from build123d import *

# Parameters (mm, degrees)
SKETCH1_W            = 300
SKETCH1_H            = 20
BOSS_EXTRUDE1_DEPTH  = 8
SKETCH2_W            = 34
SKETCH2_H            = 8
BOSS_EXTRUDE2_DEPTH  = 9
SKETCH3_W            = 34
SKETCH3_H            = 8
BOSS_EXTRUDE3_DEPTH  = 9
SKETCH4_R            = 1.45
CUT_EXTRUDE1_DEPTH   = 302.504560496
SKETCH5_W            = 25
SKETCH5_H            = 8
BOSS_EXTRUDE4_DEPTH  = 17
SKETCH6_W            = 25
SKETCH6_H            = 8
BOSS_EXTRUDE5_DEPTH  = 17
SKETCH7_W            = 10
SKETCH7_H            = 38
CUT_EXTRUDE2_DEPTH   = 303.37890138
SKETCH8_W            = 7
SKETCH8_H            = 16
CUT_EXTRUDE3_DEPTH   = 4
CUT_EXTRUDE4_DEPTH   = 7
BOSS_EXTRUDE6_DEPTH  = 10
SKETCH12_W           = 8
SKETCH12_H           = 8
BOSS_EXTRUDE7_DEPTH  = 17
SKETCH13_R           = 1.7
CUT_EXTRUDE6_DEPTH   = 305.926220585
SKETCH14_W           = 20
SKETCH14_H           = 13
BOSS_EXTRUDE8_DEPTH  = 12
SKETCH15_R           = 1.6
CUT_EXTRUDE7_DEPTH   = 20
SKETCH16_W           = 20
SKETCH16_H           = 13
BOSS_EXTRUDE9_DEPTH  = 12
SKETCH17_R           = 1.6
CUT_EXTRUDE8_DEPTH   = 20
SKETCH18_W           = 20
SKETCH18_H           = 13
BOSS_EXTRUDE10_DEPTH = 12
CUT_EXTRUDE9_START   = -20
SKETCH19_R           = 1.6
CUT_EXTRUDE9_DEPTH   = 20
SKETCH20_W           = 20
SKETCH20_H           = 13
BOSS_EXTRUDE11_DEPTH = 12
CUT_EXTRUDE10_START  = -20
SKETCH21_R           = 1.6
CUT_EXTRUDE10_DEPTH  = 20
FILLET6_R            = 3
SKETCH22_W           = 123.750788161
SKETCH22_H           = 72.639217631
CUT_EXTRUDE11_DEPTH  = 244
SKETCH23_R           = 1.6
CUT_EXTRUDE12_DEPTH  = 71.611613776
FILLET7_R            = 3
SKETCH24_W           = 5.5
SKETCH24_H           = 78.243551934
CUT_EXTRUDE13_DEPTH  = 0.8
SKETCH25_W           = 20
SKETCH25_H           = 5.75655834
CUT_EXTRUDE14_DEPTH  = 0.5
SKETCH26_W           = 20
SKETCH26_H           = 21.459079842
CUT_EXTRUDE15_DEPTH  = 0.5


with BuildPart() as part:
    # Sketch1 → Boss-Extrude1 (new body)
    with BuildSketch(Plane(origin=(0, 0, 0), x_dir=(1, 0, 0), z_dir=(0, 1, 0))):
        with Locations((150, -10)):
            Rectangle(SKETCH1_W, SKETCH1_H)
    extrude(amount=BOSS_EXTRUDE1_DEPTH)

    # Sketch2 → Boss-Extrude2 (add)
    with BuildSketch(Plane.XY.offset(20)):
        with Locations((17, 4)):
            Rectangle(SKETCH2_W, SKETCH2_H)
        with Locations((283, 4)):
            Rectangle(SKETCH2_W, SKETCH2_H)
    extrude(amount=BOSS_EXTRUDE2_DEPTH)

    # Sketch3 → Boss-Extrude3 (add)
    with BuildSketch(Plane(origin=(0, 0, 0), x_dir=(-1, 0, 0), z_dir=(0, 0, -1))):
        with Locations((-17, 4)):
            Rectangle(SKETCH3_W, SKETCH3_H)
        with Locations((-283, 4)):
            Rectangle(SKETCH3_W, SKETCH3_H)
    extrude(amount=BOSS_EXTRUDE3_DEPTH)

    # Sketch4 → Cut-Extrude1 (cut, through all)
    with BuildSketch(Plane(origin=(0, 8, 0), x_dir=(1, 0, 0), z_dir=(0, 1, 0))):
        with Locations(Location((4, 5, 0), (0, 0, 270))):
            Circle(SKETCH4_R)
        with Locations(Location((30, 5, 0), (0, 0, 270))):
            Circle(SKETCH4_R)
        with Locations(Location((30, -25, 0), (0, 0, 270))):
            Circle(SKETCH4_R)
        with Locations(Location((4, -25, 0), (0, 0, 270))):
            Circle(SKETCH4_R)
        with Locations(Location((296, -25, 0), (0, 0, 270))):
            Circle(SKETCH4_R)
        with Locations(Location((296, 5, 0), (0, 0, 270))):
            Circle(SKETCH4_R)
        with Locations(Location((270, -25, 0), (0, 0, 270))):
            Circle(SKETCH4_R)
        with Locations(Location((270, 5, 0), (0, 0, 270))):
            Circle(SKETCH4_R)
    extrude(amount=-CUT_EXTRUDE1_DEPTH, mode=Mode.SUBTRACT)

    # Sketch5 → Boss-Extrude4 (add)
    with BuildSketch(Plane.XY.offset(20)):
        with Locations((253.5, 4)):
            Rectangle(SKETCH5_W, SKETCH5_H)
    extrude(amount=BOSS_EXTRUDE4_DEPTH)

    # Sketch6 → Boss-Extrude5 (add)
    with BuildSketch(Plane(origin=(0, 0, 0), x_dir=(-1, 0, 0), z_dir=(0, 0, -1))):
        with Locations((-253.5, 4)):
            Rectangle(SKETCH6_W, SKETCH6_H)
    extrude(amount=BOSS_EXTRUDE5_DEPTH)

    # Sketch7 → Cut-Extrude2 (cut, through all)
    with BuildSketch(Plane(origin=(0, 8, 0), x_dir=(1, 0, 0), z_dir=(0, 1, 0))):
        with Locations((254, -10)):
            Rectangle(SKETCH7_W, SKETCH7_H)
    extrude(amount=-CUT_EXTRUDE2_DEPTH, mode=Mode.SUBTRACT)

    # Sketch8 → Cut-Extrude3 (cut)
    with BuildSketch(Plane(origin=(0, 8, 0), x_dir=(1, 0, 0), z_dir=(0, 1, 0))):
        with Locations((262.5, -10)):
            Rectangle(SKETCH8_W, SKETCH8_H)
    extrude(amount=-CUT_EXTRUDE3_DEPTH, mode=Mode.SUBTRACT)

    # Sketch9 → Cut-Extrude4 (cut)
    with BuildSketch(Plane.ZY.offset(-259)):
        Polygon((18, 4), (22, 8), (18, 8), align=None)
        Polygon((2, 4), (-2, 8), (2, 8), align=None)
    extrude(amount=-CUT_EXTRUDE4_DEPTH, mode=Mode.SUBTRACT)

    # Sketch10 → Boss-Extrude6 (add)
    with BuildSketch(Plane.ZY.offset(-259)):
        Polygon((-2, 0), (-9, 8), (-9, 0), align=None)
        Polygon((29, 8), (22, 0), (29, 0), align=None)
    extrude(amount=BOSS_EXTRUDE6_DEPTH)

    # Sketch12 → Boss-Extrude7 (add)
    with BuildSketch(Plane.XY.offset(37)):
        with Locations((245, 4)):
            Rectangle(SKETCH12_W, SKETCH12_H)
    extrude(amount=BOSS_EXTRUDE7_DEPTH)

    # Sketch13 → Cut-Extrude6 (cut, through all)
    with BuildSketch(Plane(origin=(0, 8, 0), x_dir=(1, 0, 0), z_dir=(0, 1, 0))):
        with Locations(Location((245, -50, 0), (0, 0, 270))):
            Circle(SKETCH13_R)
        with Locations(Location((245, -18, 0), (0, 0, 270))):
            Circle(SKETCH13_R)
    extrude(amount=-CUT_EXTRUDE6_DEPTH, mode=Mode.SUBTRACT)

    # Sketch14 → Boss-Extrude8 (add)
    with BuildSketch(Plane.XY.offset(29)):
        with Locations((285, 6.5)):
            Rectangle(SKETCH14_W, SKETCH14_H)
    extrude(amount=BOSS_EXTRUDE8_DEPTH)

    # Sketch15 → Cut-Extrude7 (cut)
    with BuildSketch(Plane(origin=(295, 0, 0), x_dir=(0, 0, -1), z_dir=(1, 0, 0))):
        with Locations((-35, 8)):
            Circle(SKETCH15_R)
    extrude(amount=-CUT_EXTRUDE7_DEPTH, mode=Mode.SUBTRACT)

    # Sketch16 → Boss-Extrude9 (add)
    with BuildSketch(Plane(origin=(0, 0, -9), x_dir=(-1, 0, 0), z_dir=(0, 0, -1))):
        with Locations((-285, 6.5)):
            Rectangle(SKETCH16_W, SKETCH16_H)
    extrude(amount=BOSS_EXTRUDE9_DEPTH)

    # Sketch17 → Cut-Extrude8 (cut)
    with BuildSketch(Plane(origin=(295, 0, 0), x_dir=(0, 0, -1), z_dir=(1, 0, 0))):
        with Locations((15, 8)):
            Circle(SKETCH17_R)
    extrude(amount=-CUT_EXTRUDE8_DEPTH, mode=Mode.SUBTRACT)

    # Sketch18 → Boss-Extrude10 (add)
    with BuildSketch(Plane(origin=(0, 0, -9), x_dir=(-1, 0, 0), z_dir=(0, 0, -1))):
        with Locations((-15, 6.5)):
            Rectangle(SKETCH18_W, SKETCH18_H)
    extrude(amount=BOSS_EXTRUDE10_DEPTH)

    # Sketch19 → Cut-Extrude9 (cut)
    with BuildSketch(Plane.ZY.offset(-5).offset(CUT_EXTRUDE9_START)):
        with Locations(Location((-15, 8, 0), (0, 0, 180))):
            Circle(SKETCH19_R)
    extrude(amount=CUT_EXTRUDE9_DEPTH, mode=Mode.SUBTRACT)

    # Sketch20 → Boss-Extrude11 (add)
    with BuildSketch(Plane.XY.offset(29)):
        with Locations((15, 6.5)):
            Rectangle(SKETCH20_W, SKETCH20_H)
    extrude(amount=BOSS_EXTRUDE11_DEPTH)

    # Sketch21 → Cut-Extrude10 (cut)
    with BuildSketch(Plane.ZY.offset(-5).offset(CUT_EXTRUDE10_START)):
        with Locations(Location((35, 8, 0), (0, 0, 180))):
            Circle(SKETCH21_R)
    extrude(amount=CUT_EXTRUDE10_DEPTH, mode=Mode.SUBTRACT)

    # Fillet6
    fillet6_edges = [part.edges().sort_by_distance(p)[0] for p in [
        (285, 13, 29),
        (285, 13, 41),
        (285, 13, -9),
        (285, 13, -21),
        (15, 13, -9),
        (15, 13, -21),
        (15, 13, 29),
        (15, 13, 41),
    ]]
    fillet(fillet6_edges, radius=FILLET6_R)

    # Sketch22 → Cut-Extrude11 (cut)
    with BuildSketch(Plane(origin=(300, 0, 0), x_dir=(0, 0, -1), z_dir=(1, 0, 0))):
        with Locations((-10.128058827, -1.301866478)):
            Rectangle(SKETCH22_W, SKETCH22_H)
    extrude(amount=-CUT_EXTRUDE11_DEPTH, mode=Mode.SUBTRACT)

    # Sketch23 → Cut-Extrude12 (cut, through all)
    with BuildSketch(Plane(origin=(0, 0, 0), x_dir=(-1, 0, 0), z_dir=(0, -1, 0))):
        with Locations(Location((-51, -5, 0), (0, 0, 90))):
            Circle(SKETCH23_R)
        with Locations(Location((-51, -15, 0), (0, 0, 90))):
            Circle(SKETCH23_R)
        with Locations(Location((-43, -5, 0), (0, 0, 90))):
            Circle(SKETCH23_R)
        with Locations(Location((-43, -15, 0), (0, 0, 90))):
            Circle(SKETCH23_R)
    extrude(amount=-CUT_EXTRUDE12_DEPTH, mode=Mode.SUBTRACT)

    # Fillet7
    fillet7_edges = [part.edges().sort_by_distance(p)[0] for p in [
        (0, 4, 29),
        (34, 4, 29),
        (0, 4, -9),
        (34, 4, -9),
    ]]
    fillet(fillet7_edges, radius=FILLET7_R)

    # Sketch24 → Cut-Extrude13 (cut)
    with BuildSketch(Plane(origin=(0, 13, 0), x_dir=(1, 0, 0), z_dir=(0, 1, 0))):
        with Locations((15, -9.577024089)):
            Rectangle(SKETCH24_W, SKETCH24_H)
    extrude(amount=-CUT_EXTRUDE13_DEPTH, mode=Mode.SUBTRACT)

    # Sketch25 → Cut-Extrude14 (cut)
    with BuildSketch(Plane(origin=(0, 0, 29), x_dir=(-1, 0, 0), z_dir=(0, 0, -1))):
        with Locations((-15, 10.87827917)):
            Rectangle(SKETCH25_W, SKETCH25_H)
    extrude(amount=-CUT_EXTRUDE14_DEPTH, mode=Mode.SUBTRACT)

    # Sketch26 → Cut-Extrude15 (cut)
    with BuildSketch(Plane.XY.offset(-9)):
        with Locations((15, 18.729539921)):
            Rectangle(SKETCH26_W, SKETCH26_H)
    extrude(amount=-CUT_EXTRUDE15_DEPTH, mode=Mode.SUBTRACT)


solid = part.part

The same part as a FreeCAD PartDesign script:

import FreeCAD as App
import Part
import Sketcher
Q = App.Units.Quantity


def edges_at(feature, points):
    """Names of the edges that pass closest to the given points."""
    edges = feature.Shape.Edges
    near = lambda p: min(range(len(edges)), key=lambda i: edges[i].distToShape(Part.Vertex(*p))[0])
    return sorted({f"Edge{near(p) + 1}" for p in points})


def add_polygon(sketch, points):
    """Adds a closed chain of lines whose ends are joined by coincident constraints."""
    first, n = sketch.GeometryCount, len(points)
    for a, b in zip(points, points[1:] + points[:1]):
        sketch.addGeometry(Part.LineSegment(App.Vector(*a, 0), App.Vector(*b, 0)), False)
    for i in range(n):
        sketch.addConstraint(Sketcher.Constraint("Coincident", first + i, 2, first + (i + 1) % n, 1))

doc = App.newDocument("Part")
body = doc.addObject("PartDesign::Body", "Body")

sketch1 = body.newObject("Sketcher::SketchObject", "Sketch")
sketch1.AttachmentSupport = (doc.getObject("XZ_Plane"), [""])
sketch1.MapMode = "FlatFace"
add_polygon(sketch1, [(0, 0), (0, 20), (300, 20), (300, 0)])
sketch1.addConstraint([
    Sketcher.Constraint("Vertical", 0),
    Sketcher.Constraint("Horizontal", 1),
    Sketcher.Constraint("Vertical", 2),
    Sketcher.Constraint("Horizontal", 3),
    Sketcher.Constraint("Coincident", 3, 2, -1, 1),
    Sketcher.Constraint("DistanceX", 1, 1, 1, 2, Q("300 mm")),
    Sketcher.Constraint("DistanceY", 0, 1, 0, 2, Q("20 mm")),
])
pad1 = body.newObject("PartDesign::Pad", "Pad")
pad1.Profile = sketch1
pad1.Length = 8
pad1.Reversed = True

sketch2 = body.newObject("Sketcher::SketchObject", "Sketch001")
sketch2.AttachmentSupport = (doc.getObject("XY_Plane"), [""])
sketch2.MapMode = "FlatFace"
sketch2.AttachmentOffset = App.Placement(App.Vector(0, 0, 20), App.Rotation())
add_polygon(sketch2, [(0, 8), (0, 0), (34, 0), (34, 8)])
add_polygon(sketch2, [(266, 8), (266, 0), (300, 0), (300, 8)])
sketch2.addConstraint([
    Sketcher.Constraint("Vertical", 0),
    Sketcher.Constraint("Horizontal", 1),
    Sketcher.Constraint("Vertical", 2),
    Sketcher.Constraint("Horizontal", 3),
    Sketcher.Constraint("Vertical", 4),
    Sketcher.Constraint("Horizontal", 5),
    Sketcher.Constraint("Vertical", 6),
    Sketcher.Constraint("Horizontal", 7),
    Sketcher.Constraint("Coincident", 0, 2, -1, 1),
    Sketcher.Constraint("PointOnObject", 4, 2, -1),
    Sketcher.Constraint("Horizontal", 3, 2, 6, 2),
    Sketcher.Constraint("Equal", 3, 5),
    Sketcher.Constraint("DistanceX", 1, 1, 1, 2, Q("34 mm")),
    Sketcher.Constraint("DistanceY", 0, 2, 0, 1, Q("8 mm")),
    Sketcher.Constraint("DistanceX", -1, 1, 4, 2, Q("266 mm")),
])
pad2 = body.newObject("PartDesign::Pad", "Pad001")
pad2.Profile = sketch2
pad2.Length = 9

sketch3 = body.newObject("Sketcher::SketchObject", "Sketch002")
sketch3.AttachmentSupport = (doc.getObject("XY_Plane"), [""])
sketch3.MapMode = "FlatFace"
add_polygon(sketch3, [(34, 8), (34, 0), (0, 0), (0, 8)])
add_polygon(sketch3, [(300, 8), (300, 0), (266, 0), (266, 8)])
sketch3.addConstraint([
    Sketcher.Constraint("Vertical", 0),
    Sketcher.Constraint("Horizontal", 1),
    Sketcher.Constraint("Vertical", 2),
    Sketcher.Constraint("Horizontal", 3),
    Sketcher.Constraint("Vertical", 4),
    Sketcher.Constraint("Horizontal", 5),
    Sketcher.Constraint("Vertical", 6),
    Sketcher.Constraint("Horizontal", 7),
    Sketcher.Constraint("Coincident", 1, 2, -1, 1),
    Sketcher.Constraint("PointOnObject", 4, 2, -1),
    Sketcher.Constraint("Horizontal", 3, 2, 6, 2),
    Sketcher.Constraint("Equal", 3, 5),
    Sketcher.Constraint("DistanceX", 1, 2, 1, 1, Q("34 mm")),
    Sketcher.Constraint("DistanceY", 0, 2, 0, 1, Q("8 mm")),
    Sketcher.Constraint("DistanceX", -1, 1, 4, 2, Q("300 mm")),
])
pad3 = body.newObject("PartDesign::Pad", "Pad002")
pad3.Profile = sketch3
pad3.Length = 9
pad3.Reversed = True

sketch4 = body.newObject("Sketcher::SketchObject", "Sketch003")
sketch4.AttachmentSupport = (doc.getObject("XZ_Plane"), [""])
sketch4.MapMode = "FlatFace"
sketch4.AttachmentOffset = App.Placement(App.Vector(0, 0, -8), App.Rotation())
sketch4.addGeometry([
    Part.Circle(App.Vector(4, -5, 0), App.Vector(0, 0, 1), 1.4),
    Part.Circle(App.Vector(30, -5, 0), App.Vector(0, 0, 1), 1.4),
    Part.Circle(App.Vector(30, 25, 0), App.Vector(0, 0, 1), 1.4),
    Part.Circle(App.Vector(4, 25, 0), App.Vector(0, 0, 1), 1.4),
    Part.Circle(App.Vector(296, 25, 0), App.Vector(0, 0, 1), 1.4),
    Part.Circle(App.Vector(296, -5, 0), App.Vector(0, 0, 1), 1.4),
    Part.Circle(App.Vector(270, 25, 0), App.Vector(0, 0, 1), 1.4),
    Part.Circle(App.Vector(270, -5, 0), App.Vector(0, 0, 1), 1.4),
], False)
sketch4.addConstraint([
    Sketcher.Constraint("Equal", 0, 1),
    Sketcher.Constraint("Equal", 1, 2),
    Sketcher.Constraint("Equal", 2, 3),
    Sketcher.Constraint("Equal", 3, 4),
    Sketcher.Constraint("Equal", 4, 5),
    Sketcher.Constraint("Equal", 5, 6),
    Sketcher.Constraint("Equal", 6, 7),
    Sketcher.Constraint("Horizontal", 0, 3, 1, 3),
    Sketcher.Constraint("Horizontal", 2, 3, 3, 3),
    Sketcher.Constraint("Horizontal", 3, 3, 4, 3),
    Sketcher.Constraint("Horizontal", 1, 3, 5, 3),
    Sketcher.Constraint("Horizontal", 4, 3, 6, 3),
    Sketcher.Constraint("Horizontal", 5, 3, 7, 3),
    Sketcher.Constraint("Vertical", 1, 3, 2, 3),
    Sketcher.Constraint("Vertical", 0, 3, 3, 3),
    Sketcher.Constraint("Vertical", 4, 3, 5, 3),
    Sketcher.Constraint("Vertical", 6, 3, 7, 3),
    Sketcher.Constraint("Diameter", 0, Q("2.9 mm")),
    Sketcher.Constraint("DistanceX", -1, 1, 0, 3, Q("4 mm")),
    Sketcher.Constraint("DistanceY", 0, 3, -1, 1, Q("5 mm")),
    Sketcher.Constraint("DistanceX", -1, 1, 1, 3, Q("30 mm")),
    Sketcher.Constraint("DistanceY", -1, 1, 2, 3, Q("25 mm")),
    Sketcher.Constraint("DistanceX", -1, 1, 4, 3, Q("296 mm")),
    Sketcher.Constraint("DistanceX", -1, 1, 6, 3, Q("270 mm")),
])
pocket1 = body.newObject("PartDesign::Pocket", "Pocket")
pocket1.Profile = sketch4
pocket1.Type = "ThroughAll"
pocket1.Reversed = True

sketch5 = body.newObject("Sketcher::SketchObject", "Sketch004")
sketch5.AttachmentSupport = (doc.getObject("XY_Plane"), [""])
sketch5.MapMode = "FlatFace"
sketch5.AttachmentOffset = App.Placement(App.Vector(0, 0, 20), App.Rotation())
add_polygon(sketch5, [(241, 8), (241, 0), (266, 0), (266, 8)])
sketch5.addConstraint([
    Sketcher.Constraint("Vertical", 0),
    Sketcher.Constraint("Horizontal", 1),
    Sketcher.Constraint("Vertical", 2),
    Sketcher.Constraint("Horizontal", 3),
    Sketcher.Constraint("PointOnObject", 0, 2, -1),
    Sketcher.Constraint("DistanceX", 1, 1, 1, 2, Q("25 mm")),
    Sketcher.Constraint("DistanceY", 0, 2, 0, 1, Q("8 mm")),
    Sketcher.Constraint("DistanceX", -1, 1, 0, 2, Q("241 mm")),
])
pad4 = body.newObject("PartDesign::Pad", "Pad003")
pad4.Profile = sketch5
pad4.Length = 17

sketch6 = body.newObject("Sketcher::SketchObject", "Sketch005")
sketch6.AttachmentSupport = (doc.getObject("XY_Plane"), [""])
sketch6.MapMode = "FlatFace"
add_polygon(sketch6, [(266, 8), (266, 0), (241, 0), (241, 8)])
sketch6.addConstraint([
    Sketcher.Constraint("Vertical", 0),
    Sketcher.Constraint("Horizontal", 1),
    Sketcher.Constraint("Vertical", 2),
    Sketcher.Constraint("Horizontal", 3),
    Sketcher.Constraint("PointOnObject", 0, 2, -1),
    Sketcher.Constraint("DistanceX", 1, 2, 1, 1, Q("25 mm")),
    Sketcher.Constraint("DistanceY", 0, 2, 0, 1, Q("8 mm")),
    Sketcher.Constraint("DistanceX", -1, 1, 0, 2, Q("266 mm")),
])
pad5 = body.newObject("PartDesign::Pad", "Pad004")
pad5.Profile = sketch6
pad5.Length = 17
pad5.Reversed = True

sketch7 = body.newObject("Sketcher::SketchObject", "Sketch006")
sketch7.AttachmentSupport = (doc.getObject("XZ_Plane"), [""])
sketch7.MapMode = "FlatFace"
sketch7.AttachmentOffset = App.Placement(App.Vector(0, 0, -8), App.Rotation())
add_polygon(sketch7, [(249, -9), (249, 29), (259, 29), (259, -9)])
sketch7.addConstraint([
    Sketcher.Constraint("Vertical", 0),
    Sketcher.Constraint("Horizontal", 1),
    Sketcher.Constraint("Vertical", 2),
    Sketcher.Constraint("Horizontal", 3),
    Sketcher.Constraint("DistanceX", 1, 1, 1, 2, Q("10 mm")),
    Sketcher.Constraint("DistanceY", 0, 1, 0, 2, Q("38 mm")),
    Sketcher.Constraint("DistanceX", -1, 1, 0, 2, Q("249 mm")),
    Sketcher.Constraint("DistanceY", -1, 1, 0, 2, Q("29 mm")),
])
pocket2 = body.newObject("PartDesign::Pocket", "Pocket001")
pocket2.Profile = sketch7
pocket2.Type = "ThroughAll"
pocket2.Reversed = True

sketch8 = body.newObject("Sketcher::SketchObject", "Sketch007")
sketch8.AttachmentSupport = (doc.getObject("XZ_Plane"), [""])
sketch8.MapMode = "FlatFace"
sketch8.AttachmentOffset = App.Placement(App.Vector(0, 0, -8), App.Rotation())
add_polygon(sketch8, [(259, 2), (259, 18), (266, 18), (266, 2)])
sketch8.addConstraint([
    Sketcher.Constraint("Vertical", 0),
    Sketcher.Constraint("Horizontal", 1),
    Sketcher.Constraint("Vertical", 2),
    Sketcher.Constraint("Horizontal", 3),
    Sketcher.Constraint("DistanceX", 1, 1, 1, 2, Q("7 mm")),
    Sketcher.Constraint("DistanceY", 0, 1, 0, 2, Q("16 mm")),
    Sketcher.Constraint("DistanceX", -1, 1, 0, 2, Q("259 mm")),
    Sketcher.Constraint("DistanceY", -1, 1, 0, 2, Q("18 mm")),
])
pocket3 = body.newObject("PartDesign::Pocket", "Pocket002")
pocket3.Profile = sketch8
pocket3.Length = 4
pocket3.Reversed = True

sketch9 = body.newObject("Sketcher::SketchObject", "Sketch008")
sketch9.AttachmentSupport = (doc.getObject("YZ_Plane"), [""])
sketch9.MapMode = "FlatFace"
sketch9.AttachmentOffset = App.Placement(App.Vector(0, 0, 259), App.Rotation())
add_polygon(sketch9, [(4, 18), (8, 22), (8, 18)])
add_polygon(sketch9, [(8, -2), (4, 2), (8, 2)])
sketch9.addConstraint([
    Sketcher.Constraint("Vertical", 1),
    Sketcher.Constraint("Horizontal", 2),
    Sketcher.Constraint("Horizontal", 4),
    Sketcher.Constraint("Vertical", 5),
    Sketcher.Constraint("Perpendicular", 0, 3),
    Sketcher.Constraint("Vertical", 2, 2, 3, 2),
    Sketcher.Constraint("Vertical", 1, 2, 4, 2),
    Sketcher.Constraint("Equal", 4, 1),
    Sketcher.Constraint("DistanceX", 2, 2, 2, 1, Q("4 mm")),
    Sketcher.Constraint("DistanceX", -1, 1, 0, 2, Q("8 mm")),
    Sketcher.Constraint("DistanceY", -1, 1, 0, 2, Q("22 mm")),
    Sketcher.Constraint("DistanceY", -1, 1, 3, 2, Q("2 mm")),
])
pocket4 = body.newObject("PartDesign::Pocket", "Pocket003")
pocket4.Profile = sketch9
pocket4.Length = 7
pocket4.Reversed = True

sketch10 = body.newObject("Sketcher::SketchObject", "Sketch009")
sketch10.AttachmentSupport = (doc.getObject("YZ_Plane"), [""])
sketch10.MapMode = "FlatFace"
sketch10.AttachmentOffset = App.Placement(App.Vector(0, 0, 259), App.Rotation())
add_polygon(sketch10, [(0, -2), (8, -9), (0, -9)])
add_polygon(sketch10, [(8, 29), (0, 22), (0, 29)])
sketch10.addConstraint([
    Sketcher.Constraint("Horizontal", 1),
    Sketcher.Constraint("Vertical", 2),
    Sketcher.Constraint("Vertical", 4),
    Sketcher.Constraint("Horizontal", 5),
    Sketcher.Constraint("PointOnObject", 1, 2, -2),
    Sketcher.Constraint("PointOnObject", 3, 2, -2),
    Sketcher.Constraint("Vertical", 0, 2, 5, 2),
    Sketcher.Constraint("Equal", 2, 4),
    Sketcher.Constraint("DistanceX", 1, 2, 1, 1, Q("8 mm")),
    Sketcher.Constraint("DistanceY", 2, 1, 2, 2, Q("7 mm")),
    Sketcher.Constraint("DistanceY", 0, 2, -1, 1, Q("9 mm")),
    Sketcher.Constraint("DistanceY", -1, 1, 3, 2, Q("22 mm")),
])
pad6 = body.newObject("PartDesign::Pad", "Pad005")
pad6.Profile = sketch10
pad6.Length = 10
pad6.Reversed = True

sketch11 = body.newObject("Sketcher::SketchObject", "Sketch010")
sketch11.AttachmentSupport = (doc.getObject("XY_Plane"), [""])
sketch11.MapMode = "FlatFace"
sketch11.AttachmentOffset = App.Placement(App.Vector(0, 0, 37), App.Rotation())
add_polygon(sketch11, [(241, 8), (241, 0), (249, 0), (249, 8)])
sketch11.addConstraint([
    Sketcher.Constraint("Vertical", 0),
    Sketcher.Constraint("Horizontal", 1),
    Sketcher.Constraint("Vertical", 2),
    Sketcher.Constraint("Horizontal", 3),
    Sketcher.Constraint("PointOnObject", 0, 2, -1),
    Sketcher.Constraint("Equal", 3, 0),
    Sketcher.Constraint("DistanceX", 1, 1, 1, 2, Q("8 mm")),
    Sketcher.Constraint("DistanceX", -1, 1, 0, 2, Q("241 mm")),
])
pad7 = body.newObject("PartDesign::Pad", "Pad006")
pad7.Profile = sketch11
pad7.Length = 17

sketch12 = body.newObject("Sketcher::SketchObject", "Sketch011")
sketch12.AttachmentSupport = (doc.getObject("XZ_Plane"), [""])
sketch12.MapMode = "FlatFace"
sketch12.AttachmentOffset = App.Placement(App.Vector(0, 0, -8), App.Rotation())
sketch12.addGeometry([
    Part.Circle(App.Vector(245, 50, 0), App.Vector(0, 0, 1), 1.7),
    Part.Circle(App.Vector(245, 18, 0), App.Vector(0, 0, 1), 1.7),
], False)
sketch12.addConstraint([
    Sketcher.Constraint("Equal", 0, 1),
    Sketcher.Constraint("Vertical", 0, 3, 1, 3),
    Sketcher.Constraint("Diameter", 0, Q("3.4 mm")),
    Sketcher.Constraint("DistanceX", -1, 1, 0, 3, Q("245 mm")),
    Sketcher.Constraint("DistanceY", -1, 1, 0, 3, Q("50 mm")),
    Sketcher.Constraint("DistanceY", -1, 1, 1, 3, Q("18 mm")),
])
pocket5 = body.newObject("PartDesign::Pocket", "Pocket004")
pocket5.Profile = sketch12
pocket5.Type = "ThroughAll"
pocket5.Reversed = True

sketch13 = body.newObject("Sketcher::SketchObject", "Sketch012")
sketch13.AttachmentSupport = (doc.getObject("XY_Plane"), [""])
sketch13.MapMode = "FlatFace"
sketch13.AttachmentOffset = App.Placement(App.Vector(0, 0, 29), App.Rotation())
add_polygon(sketch13, [(275, 13), (275, 0), (295, 0), (295, 13)])
sketch13.addConstraint([
    Sketcher.Constraint("Vertical", 0),
    Sketcher.Constraint("Horizontal", 1),
    Sketcher.Constraint("Vertical", 2),
    Sketcher.Constraint("Horizontal", 3),
    Sketcher.Constraint("PointOnObject", 0, 2, -1),
    Sketcher.Constraint("DistanceX", 1, 1, 1, 2, Q("20 mm")),
    Sketcher.Constraint("DistanceY", 0, 2, 0, 1, Q("13 mm")),
    Sketcher.Constraint("DistanceX", -1, 1, 0, 2, Q("275 mm")),
])
pad8 = body.newObject("PartDesign::Pad", "Pad007")
pad8.Profile = sketch13
pad8.Length = 12

sketch14 = body.newObject("Sketcher::SketchObject", "Sketch013")
sketch14.AttachmentSupport = (doc.getObject("YZ_Plane"), [""])
sketch14.MapMode = "FlatFace"
sketch14.AttachmentOffset = App.Placement(App.Vector(0, 0, 295), App.Rotation())
sketch14.addGeometry(Part.Circle(App.Vector(8, 35, 0), App.Vector(0, 0, 1), 1.6), False)
sketch14.addConstraint([
    Sketcher.Constraint("Diameter", 0, Q("3.2 mm")),
    Sketcher.Constraint("DistanceX", -1, 1, 0, 3, Q("8 mm")),
    Sketcher.Constraint("DistanceY", -1, 1, 0, 3, Q("35 mm")),
])
pocket6 = body.newObject("PartDesign::Pocket", "Pocket005")
pocket6.Profile = sketch14
pocket6.Length = 20

sketch15 = body.newObject("Sketcher::SketchObject", "Sketch014")
sketch15.AttachmentSupport = (doc.getObject("XY_Plane"), [""])
sketch15.MapMode = "FlatFace"
sketch15.AttachmentOffset = App.Placement(App.Vector(0, 0, -9), App.Rotation())
add_polygon(sketch15, [(295, 13), (295, 0), (275, 0), (275, 13)])
sketch15.addConstraint([
    Sketcher.Constraint("Vertical", 0),
    Sketcher.Constraint("Horizontal", 1),
    Sketcher.Constraint("Vertical", 2),
    Sketcher.Constraint("Horizontal", 3),
    Sketcher.Constraint("PointOnObject", 0, 2, -1),
    Sketcher.Constraint("DistanceX", 1, 2, 1, 1, Q("20 mm")),
    Sketcher.Constraint("DistanceY", 0, 2, 0, 1, Q("13 mm")),
    Sketcher.Constraint("DistanceX", -1, 1, 0, 2, Q("295 mm")),
])
pad9 = body.newObject("PartDesign::Pad", "Pad008")
pad9.Profile = sketch15
pad9.Length = 12
pad9.Reversed = True

sketch16 = body.newObject("Sketcher::SketchObject", "Sketch015")
sketch16.AttachmentSupport = (doc.getObject("YZ_Plane"), [""])
sketch16.MapMode = "FlatFace"
sketch16.AttachmentOffset = App.Placement(App.Vector(0, 0, 295), App.Rotation())
sketch16.addGeometry(Part.Circle(App.Vector(8, -15, 0), App.Vector(0, 0, 1), 1.6), False)
sketch16.addConstraint([
    Sketcher.Constraint("Diameter", 0, Q("3.2 mm")),
    Sketcher.Constraint("DistanceX", -1, 1, 0, 3, Q("8 mm")),
    Sketcher.Constraint("DistanceY", 0, 3, -1, 1, Q("15 mm")),
])
pocket7 = body.newObject("PartDesign::Pocket", "Pocket006")
pocket7.Profile = sketch16
pocket7.Length = 20

sketch17 = body.newObject("Sketcher::SketchObject", "Sketch016")
sketch17.AttachmentSupport = (doc.getObject("XY_Plane"), [""])
sketch17.MapMode = "FlatFace"
sketch17.AttachmentOffset = App.Placement(App.Vector(0, 0, -9), App.Rotation())
add_polygon(sketch17, [(25, 13), (25, 0), (5, 0), (5, 13)])
sketch17.addConstraint([
    Sketcher.Constraint("Vertical", 0),
    Sketcher.Constraint("Horizontal", 1),
    Sketcher.Constraint("Vertical", 2),
    Sketcher.Constraint("Horizontal", 3),
    Sketcher.Constraint("PointOnObject", 0, 2, -1),
    Sketcher.Constraint("DistanceX", 1, 2, 1, 1, Q("20 mm")),
    Sketcher.Constraint("DistanceY", 0, 2, 0, 1, Q("13 mm")),
    Sketcher.Constraint("DistanceX", -1, 1, 0, 2, Q("25 mm")),
])
pad10 = body.newObject("PartDesign::Pad", "Pad009")
pad10.Profile = sketch17
pad10.Length = 12
pad10.Reversed = True

sketch18 = body.newObject("Sketcher::SketchObject", "Sketch017")
sketch18.AttachmentSupport = (doc.getObject("YZ_Plane"), [""])
sketch18.MapMode = "FlatFace"
sketch18.AttachmentOffset = App.Placement(App.Vector(0, 0, 25), App.Rotation())
sketch18.addGeometry(Part.Circle(App.Vector(8, -15, 0), App.Vector(0, 0, 1), 1.6), False)
sketch18.addConstraint([
    Sketcher.Constraint("Diameter", 0, Q("3.2 mm")),
    Sketcher.Constraint("DistanceX", -1, 1, 0, 3, Q("8 mm")),
    Sketcher.Constraint("DistanceY", 0, 3, -1, 1, Q("15 mm")),
])
pocket8 = body.newObject("PartDesign::Pocket", "Pocket007")
pocket8.Profile = sketch18
pocket8.Length = 20

sketch19 = body.newObject("Sketcher::SketchObject", "Sketch018")
sketch19.AttachmentSupport = (doc.getObject("XY_Plane"), [""])
sketch19.MapMode = "FlatFace"
sketch19.AttachmentOffset = App.Placement(App.Vector(0, 0, 29), App.Rotation())
add_polygon(sketch19, [(5, 13), (5, 0), (25, 0), (25, 13)])
sketch19.addConstraint([
    Sketcher.Constraint("Vertical", 0),
    Sketcher.Constraint("Horizontal", 1),
    Sketcher.Constraint("Vertical", 2),
    Sketcher.Constraint("Horizontal", 3),
    Sketcher.Constraint("PointOnObject", 0, 2, -1),
    Sketcher.Constraint("DistanceX", 1, 1, 1, 2, Q("20 mm")),
    Sketcher.Constraint("DistanceY", 0, 2, 0, 1, Q("13 mm")),
    Sketcher.Constraint("DistanceX", -1, 1, 0, 2, Q("5 mm")),
])
pad11 = body.newObject("PartDesign::Pad", "Pad010")
pad11.Profile = sketch19
pad11.Length = 12

sketch20 = body.newObject("Sketcher::SketchObject", "Sketch019")
sketch20.AttachmentSupport = (doc.getObject("YZ_Plane"), [""])
sketch20.MapMode = "FlatFace"
sketch20.AttachmentOffset = App.Placement(App.Vector(0, 0, 25), App.Rotation())
sketch20.addGeometry(Part.Circle(App.Vector(8, 35, 0), App.Vector(0, 0, 1), 1.6), False)
sketch20.addConstraint([
    Sketcher.Constraint("Diameter", 0, Q("3.2 mm")),
    Sketcher.Constraint("DistanceX", -1, 1, 0, 3, Q("8 mm")),
    Sketcher.Constraint("DistanceY", -1, 1, 0, 3, Q("35 mm")),
])
pocket9 = body.newObject("PartDesign::Pocket", "Pocket008")
pocket9.Profile = sketch20
pocket9.Length = 20
doc.recompute()

fillet = body.newObject("PartDesign::Fillet", "Fillet")
fillet.Base = (pocket9, edges_at(pocket9, [
    (285, 13, 29),
    (285, 13, 41),
    (285, 13, -9),
    (285, 13, -21),
    (15, 13, -9),
    (15, 13, -21),
    (15, 13, 29),
    (15, 13, 41),
]))
fillet.Radius = 3

sketch21 = body.newObject("Sketcher::SketchObject", "Sketch020")
sketch21.AttachmentSupport = (doc.getObject("YZ_Plane"), [""])
sketch21.MapMode = "FlatFace"
sketch21.AttachmentOffset = App.Placement(App.Vector(0, 0, 300), App.Rotation())
add_polygon(sketch21, [(35, 72), (-38, 72), (-38, -52), (35, -52)])
sketch21.addConstraint([
    Sketcher.Constraint("Horizontal", 0),
    Sketcher.Constraint("Vertical", 1),
    Sketcher.Constraint("Horizontal", 2),
    Sketcher.Constraint("Vertical", 3),
    Sketcher.Constraint("DistanceY", 1, 2, 1, 1, Q("123.750788 mm")),
    Sketcher.Constraint("DistanceX", 0, 2, 0, 1, Q("72.639218 mm")),
    Sketcher.Constraint("DistanceX", 0, 2, -1, 1, Q("37.621475 mm")),
    Sketcher.Constraint("DistanceY", -1, 1, 0, 2, Q("72.003453 mm")),
])
pocket10 = body.newObject("PartDesign::Pocket", "Pocket009")
pocket10.Profile = sketch21
pocket10.Length = 244

sketch22 = body.newObject("Sketcher::SketchObject", "Sketch021")
sketch22.AttachmentSupport = (doc.getObject("XZ_Plane"), [""])
sketch22.MapMode = "FlatFace"
sketch22.addGeometry([
    Part.Circle(App.Vector(51, 5, 0), App.Vector(0, 0, 1), 1.6),
    Part.Circle(App.Vector(51, 15, 0), App.Vector(0, 0, 1), 1.6),
    Part.Circle(App.Vector(43, 5, 0), App.Vector(0, 0, 1), 1.6),
    Part.Circle(App.Vector(43, 15, 0), App.Vector(0, 0, 1), 1.6),
], False)
sketch22.addConstraint([
    Sketcher.Constraint("Equal", 0, 1),
    Sketcher.Constraint("Equal", 1, 2),
    Sketcher.Constraint("Equal", 2, 3),
    Sketcher.Constraint("Horizontal", 0, 3, 2, 3),
    Sketcher.Constraint("Horizontal", 1, 3, 3, 3),
    Sketcher.Constraint("Vertical", 0, 3, 1, 3),
    Sketcher.Constraint("Vertical", 2, 3, 3, 3),
    Sketcher.Constraint("Diameter", 0, Q("3.2 mm")),
    Sketcher.Constraint("DistanceX", -1, 1, 0, 3, Q("51 mm")),
    Sketcher.Constraint("DistanceY", -1, 1, 0, 3, Q("5 mm")),
    Sketcher.Constraint("DistanceY", -1, 1, 1, 3, Q("15 mm")),
    Sketcher.Constraint("DistanceX", -1, 1, 2, 3, Q("43 mm")),
])
pocket11 = body.newObject("PartDesign::Pocket", "Pocket010")
pocket11.Profile = sketch22
pocket11.Type = "ThroughAll"
doc.recompute()

fillet2 = body.newObject("PartDesign::Fillet", "Fillet001")
fillet2.Base = (pocket11, edges_at(pocket11, [
    (0, 4, 29),
    (34, 4, 29),
    (0, 4, -9),
    (34, 4, -9),
]))
fillet2.Radius = 3

sketch23 = body.newObject("Sketcher::SketchObject", "Sketch022")
sketch23.AttachmentSupport = (doc.getObject("XZ_Plane"), [""])
sketch23.MapMode = "FlatFace"
sketch23.AttachmentOffset = App.Placement(App.Vector(0, 0, -13), App.Rotation())
add_polygon(sketch23, [(12, -30), (12, 49), (18, 49), (18, -30)])
sketch23.addConstraint([
    Sketcher.Constraint("Vertical", 0),
    Sketcher.Constraint("Horizontal", 1),
    Sketcher.Constraint("Vertical", 2),
    Sketcher.Constraint("Horizontal", 3),
    Sketcher.Constraint("DistanceX", 1, 1, 1, 2, Q("5.5 mm")),
    Sketcher.Constraint("DistanceX", -1, 1, 0, 2, Q("12.25 mm")),
    Sketcher.Constraint("DistanceY", 0, 1, 0, 2, Q("78.243552 mm")),
    Sketcher.Constraint("DistanceY", -1, 1, 0, 2, Q("48.6988 mm")),
])
pocket12 = body.newObject("PartDesign::Pocket", "Pocket011")
pocket12.Profile = sketch23
pocket12.Length = 0.8
pocket12.Reversed = True

sketch24 = body.newObject("Sketcher::SketchObject", "Sketch023")
sketch24.AttachmentSupport = (doc.getObject("XY_Plane"), [""])
sketch24.MapMode = "FlatFace"
sketch24.AttachmentOffset = App.Placement(App.Vector(0, 0, 29), App.Rotation())
add_polygon(sketch24, [(25, 14), (25, 8), (5, 8), (5, 14)])
sketch24.addConstraint([
    Sketcher.Constraint("Vertical", 0),
    Sketcher.Constraint("Horizontal", 1),
    Sketcher.Constraint("Vertical", 2),
    Sketcher.Constraint("Horizontal", 3),
    Sketcher.Constraint("DistanceX", 1, 2, 1, 1, Q("20 mm")),
    Sketcher.Constraint("DistanceX", -1, 1, 0, 2, Q("25 mm")),
    Sketcher.Constraint("DistanceY", -1, 1, 0, 2, Q("8 mm")),
    Sketcher.Constraint("DistanceY", 0, 2, 0, 1, Q("5.756558 mm")),
])
pocket13 = body.newObject("PartDesign::Pocket", "Pocket012")
pocket13.Profile = sketch24
pocket13.Length = 0.5
pocket13.Reversed = True

sketch25 = body.newObject("Sketcher::SketchObject", "Sketch024")
sketch25.AttachmentSupport = (doc.getObject("XY_Plane"), [""])
sketch25.MapMode = "FlatFace"
sketch25.AttachmentOffset = App.Placement(App.Vector(0, 0, -9), App.Rotation())
add_polygon(sketch25, [(5, 29), (5, 8), (25, 8), (25, 29)])
sketch25.addConstraint([
    Sketcher.Constraint("Vertical", 0),
    Sketcher.Constraint("Horizontal", 1),
    Sketcher.Constraint("Vertical", 2),
    Sketcher.Constraint("Horizontal", 3),
    Sketcher.Constraint("DistanceX", 1, 1, 1, 2, Q("20 mm")),
    Sketcher.Constraint("DistanceX", -1, 1, 0, 2, Q("5 mm")),
    Sketcher.Constraint("DistanceY", -1, 1, 0, 2, Q("8 mm")),
    Sketcher.Constraint("DistanceY", 0, 2, 0, 1, Q("21.45908 mm")),
])
pocket14 = body.newObject("PartDesign::Pocket", "Pocket013")
pocket14.Profile = sketch25
pocket14.Length = 0.5

doc.recompute()
